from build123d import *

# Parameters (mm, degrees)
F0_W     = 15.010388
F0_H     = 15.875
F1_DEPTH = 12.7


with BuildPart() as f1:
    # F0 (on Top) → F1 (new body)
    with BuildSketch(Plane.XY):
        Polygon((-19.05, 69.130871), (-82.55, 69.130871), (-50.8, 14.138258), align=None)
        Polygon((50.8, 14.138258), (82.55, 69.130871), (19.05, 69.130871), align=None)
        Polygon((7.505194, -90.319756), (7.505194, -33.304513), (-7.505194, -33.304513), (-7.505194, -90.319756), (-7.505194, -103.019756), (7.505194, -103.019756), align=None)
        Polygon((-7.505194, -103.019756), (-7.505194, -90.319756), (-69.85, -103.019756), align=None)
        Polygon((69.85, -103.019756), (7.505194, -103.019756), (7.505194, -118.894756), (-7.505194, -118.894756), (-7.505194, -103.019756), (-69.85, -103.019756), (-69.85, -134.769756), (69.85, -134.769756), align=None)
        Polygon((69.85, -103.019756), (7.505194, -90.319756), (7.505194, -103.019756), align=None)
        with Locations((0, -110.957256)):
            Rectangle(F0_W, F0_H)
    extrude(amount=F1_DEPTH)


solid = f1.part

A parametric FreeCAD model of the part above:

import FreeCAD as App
import Part
import Sketcher

V = App.Vector
Q = App.Units.Quantity

doc = App.newDocument("Part")
body = doc.addObject("PartDesign::Body", "Body")
body.AllowCompound = True

sketch1 = body.newObject("Sketcher::SketchObject", "Sketch")
sketch1.AttachmentSupport = (doc.getObject("XY_Plane"), [""])
sketch1.MapMode = "FlatFace"
sketch1.addGeometry([
    Part.LineSegment(V(-19.05, 69.130871, 0), V(-82.55, 69.130871, 0)),
    Part.LineSegment(V(-82.55, 69.130871, 0), V(-50.8, 14.138258, 0)),
    Part.LineSegment(V(-50.8, 14.138258, 0), V(-19.05, 69.130871, 0)),
    Part.LineSegment(V(50.8, 14.138258, 0), V(82.55, 69.130871, 0)),
    Part.LineSegment(V(82.55, 69.130871, 0), V(19.05, 69.130871, 0)),
    Part.LineSegment(V(19.05, 69.130871, 0), V(50.8, 14.138258, 0)),
    Part.LineSegment(V(69.85, -134.769756, 0), V(69.85, -103.019756, 0)),
    Part.LineSegment(V(69.85, -103.019756, 0), V(7.505194, -90.319756, 0)),
    Part.LineSegment(V(7.505194, -90.319756, 0), V(7.505194, -33.304513, 0)),
    Part.LineSegment(V(7.505194, -33.304513, 0), V(-7.505194, -33.304513, 0)),
    Part.LineSegment(V(-7.505194, -33.304513, 0), V(-7.505194, -90.319756, 0)),
    Part.LineSegment(V(-7.505194, -90.319756, 0), V(-69.85, -103.019756, 0)),
    Part.LineSegment(V(-69.85, -103.019756, 0), V(-69.85, -134.769756, 0)),
    Part.LineSegment(V(-69.85, -134.769756, 0), V(69.85, -134.769756, 0)),
], False)
sketch1.addConstraint([
    Sketcher.Constraint("Coincident", 0, 2, 1, 1),
    Sketcher.Constraint("Coincident", 1, 2, 2, 1),
    Sketcher.Constraint("Coincident", 2, 2, 0, 1),
    Sketcher.Constraint("Coincident", 3, 2, 4, 1),
    Sketcher.Constraint("Coincident", 4, 2, 5, 1),
    Sketcher.Constraint("Coincident", 5, 2, 3, 1),
    Sketcher.Constraint("Coincident", 6, 2, 7, 1),
    Sketcher.Constraint("Coincident", 7, 2, 8, 1),
    Sketcher.Constraint("Coincident", 8, 2, 9, 1),
    Sketcher.Constraint("Coincident", 9, 2, 10, 1),
    Sketcher.Constraint("Coincident", 10, 2, 11, 1),
    Sketcher.Constraint("Coincident", 11, 2, 12, 1),
    Sketcher.Constraint("Coincident", 12, 2, 13, 1),
    Sketcher.Constraint("Coincident", 13, 2, 6, 1),
    Sketcher.Constraint("Horizontal", 0),
    Sketcher.Constraint("Horizontal", 4),
    Sketcher.Constraint("Vertical", 6),
    Sketcher.Constraint("Vertical", 8),
    Sketcher.Constraint("Horizontal", 9),
    Sketcher.Constraint("Vertical", 10),
    Sketcher.Constraint("Vertical", 12),
    Sketcher.Constraint("Horizontal", 13),
    Sketcher.Constraint("Symmetric", 0, 2, 3, 2, -2),
    Sketcher.Constraint("Symmetric", 1, 2, 5, 2, -2),
    Sketcher.Constraint("Symmetric", 7, 2, 10, 2, -2),
    Sketcher.Constraint("Symmetric", 6, 2, 11, 2, -2),
    Sketcher.Constraint("Parallel", 2, 3),
    Sketcher.Constraint("Parallel", 1, 5),
    Sketcher.Constraint("DistanceX", 0, 2, 0, 1, Q("2.5 in")),
    Sketcher.Constraint("DistanceX", 13, 1, 13, 2, Q("5.5 in")),
    Sketcher.Constraint("DistanceX", 1, 2, -1, 1, Q("2 in")),
    Sketcher.Constraint("Angle", 1, Q("-60 deg")),
    Sketcher.Constraint("DistanceY", 6, 1, 6, 2, Q("1.25 in")),
    Sketcher.Constraint("DistanceY", 6, 2, 7, 2, Q("0.5 in")),
    Sketcher.Constraint("DistanceX", 9, 2, 9, 1, 15.010388),
    Sketcher.Constraint("DistanceY", 8, 1, 8, 2, 57.015243),
    Sketcher.Constraint("DistanceY", -1, 1, 0, 2, 69.130871),
    Sketcher.Constraint("DistanceY", 8, 2, 5, 2, 47.442771),
])
pad1 = body.newObject("PartDesign::Pad", "Pad")
pad1.Profile = sketch1
pad1.Length = Q("0.5 in")

doc.recompute()
